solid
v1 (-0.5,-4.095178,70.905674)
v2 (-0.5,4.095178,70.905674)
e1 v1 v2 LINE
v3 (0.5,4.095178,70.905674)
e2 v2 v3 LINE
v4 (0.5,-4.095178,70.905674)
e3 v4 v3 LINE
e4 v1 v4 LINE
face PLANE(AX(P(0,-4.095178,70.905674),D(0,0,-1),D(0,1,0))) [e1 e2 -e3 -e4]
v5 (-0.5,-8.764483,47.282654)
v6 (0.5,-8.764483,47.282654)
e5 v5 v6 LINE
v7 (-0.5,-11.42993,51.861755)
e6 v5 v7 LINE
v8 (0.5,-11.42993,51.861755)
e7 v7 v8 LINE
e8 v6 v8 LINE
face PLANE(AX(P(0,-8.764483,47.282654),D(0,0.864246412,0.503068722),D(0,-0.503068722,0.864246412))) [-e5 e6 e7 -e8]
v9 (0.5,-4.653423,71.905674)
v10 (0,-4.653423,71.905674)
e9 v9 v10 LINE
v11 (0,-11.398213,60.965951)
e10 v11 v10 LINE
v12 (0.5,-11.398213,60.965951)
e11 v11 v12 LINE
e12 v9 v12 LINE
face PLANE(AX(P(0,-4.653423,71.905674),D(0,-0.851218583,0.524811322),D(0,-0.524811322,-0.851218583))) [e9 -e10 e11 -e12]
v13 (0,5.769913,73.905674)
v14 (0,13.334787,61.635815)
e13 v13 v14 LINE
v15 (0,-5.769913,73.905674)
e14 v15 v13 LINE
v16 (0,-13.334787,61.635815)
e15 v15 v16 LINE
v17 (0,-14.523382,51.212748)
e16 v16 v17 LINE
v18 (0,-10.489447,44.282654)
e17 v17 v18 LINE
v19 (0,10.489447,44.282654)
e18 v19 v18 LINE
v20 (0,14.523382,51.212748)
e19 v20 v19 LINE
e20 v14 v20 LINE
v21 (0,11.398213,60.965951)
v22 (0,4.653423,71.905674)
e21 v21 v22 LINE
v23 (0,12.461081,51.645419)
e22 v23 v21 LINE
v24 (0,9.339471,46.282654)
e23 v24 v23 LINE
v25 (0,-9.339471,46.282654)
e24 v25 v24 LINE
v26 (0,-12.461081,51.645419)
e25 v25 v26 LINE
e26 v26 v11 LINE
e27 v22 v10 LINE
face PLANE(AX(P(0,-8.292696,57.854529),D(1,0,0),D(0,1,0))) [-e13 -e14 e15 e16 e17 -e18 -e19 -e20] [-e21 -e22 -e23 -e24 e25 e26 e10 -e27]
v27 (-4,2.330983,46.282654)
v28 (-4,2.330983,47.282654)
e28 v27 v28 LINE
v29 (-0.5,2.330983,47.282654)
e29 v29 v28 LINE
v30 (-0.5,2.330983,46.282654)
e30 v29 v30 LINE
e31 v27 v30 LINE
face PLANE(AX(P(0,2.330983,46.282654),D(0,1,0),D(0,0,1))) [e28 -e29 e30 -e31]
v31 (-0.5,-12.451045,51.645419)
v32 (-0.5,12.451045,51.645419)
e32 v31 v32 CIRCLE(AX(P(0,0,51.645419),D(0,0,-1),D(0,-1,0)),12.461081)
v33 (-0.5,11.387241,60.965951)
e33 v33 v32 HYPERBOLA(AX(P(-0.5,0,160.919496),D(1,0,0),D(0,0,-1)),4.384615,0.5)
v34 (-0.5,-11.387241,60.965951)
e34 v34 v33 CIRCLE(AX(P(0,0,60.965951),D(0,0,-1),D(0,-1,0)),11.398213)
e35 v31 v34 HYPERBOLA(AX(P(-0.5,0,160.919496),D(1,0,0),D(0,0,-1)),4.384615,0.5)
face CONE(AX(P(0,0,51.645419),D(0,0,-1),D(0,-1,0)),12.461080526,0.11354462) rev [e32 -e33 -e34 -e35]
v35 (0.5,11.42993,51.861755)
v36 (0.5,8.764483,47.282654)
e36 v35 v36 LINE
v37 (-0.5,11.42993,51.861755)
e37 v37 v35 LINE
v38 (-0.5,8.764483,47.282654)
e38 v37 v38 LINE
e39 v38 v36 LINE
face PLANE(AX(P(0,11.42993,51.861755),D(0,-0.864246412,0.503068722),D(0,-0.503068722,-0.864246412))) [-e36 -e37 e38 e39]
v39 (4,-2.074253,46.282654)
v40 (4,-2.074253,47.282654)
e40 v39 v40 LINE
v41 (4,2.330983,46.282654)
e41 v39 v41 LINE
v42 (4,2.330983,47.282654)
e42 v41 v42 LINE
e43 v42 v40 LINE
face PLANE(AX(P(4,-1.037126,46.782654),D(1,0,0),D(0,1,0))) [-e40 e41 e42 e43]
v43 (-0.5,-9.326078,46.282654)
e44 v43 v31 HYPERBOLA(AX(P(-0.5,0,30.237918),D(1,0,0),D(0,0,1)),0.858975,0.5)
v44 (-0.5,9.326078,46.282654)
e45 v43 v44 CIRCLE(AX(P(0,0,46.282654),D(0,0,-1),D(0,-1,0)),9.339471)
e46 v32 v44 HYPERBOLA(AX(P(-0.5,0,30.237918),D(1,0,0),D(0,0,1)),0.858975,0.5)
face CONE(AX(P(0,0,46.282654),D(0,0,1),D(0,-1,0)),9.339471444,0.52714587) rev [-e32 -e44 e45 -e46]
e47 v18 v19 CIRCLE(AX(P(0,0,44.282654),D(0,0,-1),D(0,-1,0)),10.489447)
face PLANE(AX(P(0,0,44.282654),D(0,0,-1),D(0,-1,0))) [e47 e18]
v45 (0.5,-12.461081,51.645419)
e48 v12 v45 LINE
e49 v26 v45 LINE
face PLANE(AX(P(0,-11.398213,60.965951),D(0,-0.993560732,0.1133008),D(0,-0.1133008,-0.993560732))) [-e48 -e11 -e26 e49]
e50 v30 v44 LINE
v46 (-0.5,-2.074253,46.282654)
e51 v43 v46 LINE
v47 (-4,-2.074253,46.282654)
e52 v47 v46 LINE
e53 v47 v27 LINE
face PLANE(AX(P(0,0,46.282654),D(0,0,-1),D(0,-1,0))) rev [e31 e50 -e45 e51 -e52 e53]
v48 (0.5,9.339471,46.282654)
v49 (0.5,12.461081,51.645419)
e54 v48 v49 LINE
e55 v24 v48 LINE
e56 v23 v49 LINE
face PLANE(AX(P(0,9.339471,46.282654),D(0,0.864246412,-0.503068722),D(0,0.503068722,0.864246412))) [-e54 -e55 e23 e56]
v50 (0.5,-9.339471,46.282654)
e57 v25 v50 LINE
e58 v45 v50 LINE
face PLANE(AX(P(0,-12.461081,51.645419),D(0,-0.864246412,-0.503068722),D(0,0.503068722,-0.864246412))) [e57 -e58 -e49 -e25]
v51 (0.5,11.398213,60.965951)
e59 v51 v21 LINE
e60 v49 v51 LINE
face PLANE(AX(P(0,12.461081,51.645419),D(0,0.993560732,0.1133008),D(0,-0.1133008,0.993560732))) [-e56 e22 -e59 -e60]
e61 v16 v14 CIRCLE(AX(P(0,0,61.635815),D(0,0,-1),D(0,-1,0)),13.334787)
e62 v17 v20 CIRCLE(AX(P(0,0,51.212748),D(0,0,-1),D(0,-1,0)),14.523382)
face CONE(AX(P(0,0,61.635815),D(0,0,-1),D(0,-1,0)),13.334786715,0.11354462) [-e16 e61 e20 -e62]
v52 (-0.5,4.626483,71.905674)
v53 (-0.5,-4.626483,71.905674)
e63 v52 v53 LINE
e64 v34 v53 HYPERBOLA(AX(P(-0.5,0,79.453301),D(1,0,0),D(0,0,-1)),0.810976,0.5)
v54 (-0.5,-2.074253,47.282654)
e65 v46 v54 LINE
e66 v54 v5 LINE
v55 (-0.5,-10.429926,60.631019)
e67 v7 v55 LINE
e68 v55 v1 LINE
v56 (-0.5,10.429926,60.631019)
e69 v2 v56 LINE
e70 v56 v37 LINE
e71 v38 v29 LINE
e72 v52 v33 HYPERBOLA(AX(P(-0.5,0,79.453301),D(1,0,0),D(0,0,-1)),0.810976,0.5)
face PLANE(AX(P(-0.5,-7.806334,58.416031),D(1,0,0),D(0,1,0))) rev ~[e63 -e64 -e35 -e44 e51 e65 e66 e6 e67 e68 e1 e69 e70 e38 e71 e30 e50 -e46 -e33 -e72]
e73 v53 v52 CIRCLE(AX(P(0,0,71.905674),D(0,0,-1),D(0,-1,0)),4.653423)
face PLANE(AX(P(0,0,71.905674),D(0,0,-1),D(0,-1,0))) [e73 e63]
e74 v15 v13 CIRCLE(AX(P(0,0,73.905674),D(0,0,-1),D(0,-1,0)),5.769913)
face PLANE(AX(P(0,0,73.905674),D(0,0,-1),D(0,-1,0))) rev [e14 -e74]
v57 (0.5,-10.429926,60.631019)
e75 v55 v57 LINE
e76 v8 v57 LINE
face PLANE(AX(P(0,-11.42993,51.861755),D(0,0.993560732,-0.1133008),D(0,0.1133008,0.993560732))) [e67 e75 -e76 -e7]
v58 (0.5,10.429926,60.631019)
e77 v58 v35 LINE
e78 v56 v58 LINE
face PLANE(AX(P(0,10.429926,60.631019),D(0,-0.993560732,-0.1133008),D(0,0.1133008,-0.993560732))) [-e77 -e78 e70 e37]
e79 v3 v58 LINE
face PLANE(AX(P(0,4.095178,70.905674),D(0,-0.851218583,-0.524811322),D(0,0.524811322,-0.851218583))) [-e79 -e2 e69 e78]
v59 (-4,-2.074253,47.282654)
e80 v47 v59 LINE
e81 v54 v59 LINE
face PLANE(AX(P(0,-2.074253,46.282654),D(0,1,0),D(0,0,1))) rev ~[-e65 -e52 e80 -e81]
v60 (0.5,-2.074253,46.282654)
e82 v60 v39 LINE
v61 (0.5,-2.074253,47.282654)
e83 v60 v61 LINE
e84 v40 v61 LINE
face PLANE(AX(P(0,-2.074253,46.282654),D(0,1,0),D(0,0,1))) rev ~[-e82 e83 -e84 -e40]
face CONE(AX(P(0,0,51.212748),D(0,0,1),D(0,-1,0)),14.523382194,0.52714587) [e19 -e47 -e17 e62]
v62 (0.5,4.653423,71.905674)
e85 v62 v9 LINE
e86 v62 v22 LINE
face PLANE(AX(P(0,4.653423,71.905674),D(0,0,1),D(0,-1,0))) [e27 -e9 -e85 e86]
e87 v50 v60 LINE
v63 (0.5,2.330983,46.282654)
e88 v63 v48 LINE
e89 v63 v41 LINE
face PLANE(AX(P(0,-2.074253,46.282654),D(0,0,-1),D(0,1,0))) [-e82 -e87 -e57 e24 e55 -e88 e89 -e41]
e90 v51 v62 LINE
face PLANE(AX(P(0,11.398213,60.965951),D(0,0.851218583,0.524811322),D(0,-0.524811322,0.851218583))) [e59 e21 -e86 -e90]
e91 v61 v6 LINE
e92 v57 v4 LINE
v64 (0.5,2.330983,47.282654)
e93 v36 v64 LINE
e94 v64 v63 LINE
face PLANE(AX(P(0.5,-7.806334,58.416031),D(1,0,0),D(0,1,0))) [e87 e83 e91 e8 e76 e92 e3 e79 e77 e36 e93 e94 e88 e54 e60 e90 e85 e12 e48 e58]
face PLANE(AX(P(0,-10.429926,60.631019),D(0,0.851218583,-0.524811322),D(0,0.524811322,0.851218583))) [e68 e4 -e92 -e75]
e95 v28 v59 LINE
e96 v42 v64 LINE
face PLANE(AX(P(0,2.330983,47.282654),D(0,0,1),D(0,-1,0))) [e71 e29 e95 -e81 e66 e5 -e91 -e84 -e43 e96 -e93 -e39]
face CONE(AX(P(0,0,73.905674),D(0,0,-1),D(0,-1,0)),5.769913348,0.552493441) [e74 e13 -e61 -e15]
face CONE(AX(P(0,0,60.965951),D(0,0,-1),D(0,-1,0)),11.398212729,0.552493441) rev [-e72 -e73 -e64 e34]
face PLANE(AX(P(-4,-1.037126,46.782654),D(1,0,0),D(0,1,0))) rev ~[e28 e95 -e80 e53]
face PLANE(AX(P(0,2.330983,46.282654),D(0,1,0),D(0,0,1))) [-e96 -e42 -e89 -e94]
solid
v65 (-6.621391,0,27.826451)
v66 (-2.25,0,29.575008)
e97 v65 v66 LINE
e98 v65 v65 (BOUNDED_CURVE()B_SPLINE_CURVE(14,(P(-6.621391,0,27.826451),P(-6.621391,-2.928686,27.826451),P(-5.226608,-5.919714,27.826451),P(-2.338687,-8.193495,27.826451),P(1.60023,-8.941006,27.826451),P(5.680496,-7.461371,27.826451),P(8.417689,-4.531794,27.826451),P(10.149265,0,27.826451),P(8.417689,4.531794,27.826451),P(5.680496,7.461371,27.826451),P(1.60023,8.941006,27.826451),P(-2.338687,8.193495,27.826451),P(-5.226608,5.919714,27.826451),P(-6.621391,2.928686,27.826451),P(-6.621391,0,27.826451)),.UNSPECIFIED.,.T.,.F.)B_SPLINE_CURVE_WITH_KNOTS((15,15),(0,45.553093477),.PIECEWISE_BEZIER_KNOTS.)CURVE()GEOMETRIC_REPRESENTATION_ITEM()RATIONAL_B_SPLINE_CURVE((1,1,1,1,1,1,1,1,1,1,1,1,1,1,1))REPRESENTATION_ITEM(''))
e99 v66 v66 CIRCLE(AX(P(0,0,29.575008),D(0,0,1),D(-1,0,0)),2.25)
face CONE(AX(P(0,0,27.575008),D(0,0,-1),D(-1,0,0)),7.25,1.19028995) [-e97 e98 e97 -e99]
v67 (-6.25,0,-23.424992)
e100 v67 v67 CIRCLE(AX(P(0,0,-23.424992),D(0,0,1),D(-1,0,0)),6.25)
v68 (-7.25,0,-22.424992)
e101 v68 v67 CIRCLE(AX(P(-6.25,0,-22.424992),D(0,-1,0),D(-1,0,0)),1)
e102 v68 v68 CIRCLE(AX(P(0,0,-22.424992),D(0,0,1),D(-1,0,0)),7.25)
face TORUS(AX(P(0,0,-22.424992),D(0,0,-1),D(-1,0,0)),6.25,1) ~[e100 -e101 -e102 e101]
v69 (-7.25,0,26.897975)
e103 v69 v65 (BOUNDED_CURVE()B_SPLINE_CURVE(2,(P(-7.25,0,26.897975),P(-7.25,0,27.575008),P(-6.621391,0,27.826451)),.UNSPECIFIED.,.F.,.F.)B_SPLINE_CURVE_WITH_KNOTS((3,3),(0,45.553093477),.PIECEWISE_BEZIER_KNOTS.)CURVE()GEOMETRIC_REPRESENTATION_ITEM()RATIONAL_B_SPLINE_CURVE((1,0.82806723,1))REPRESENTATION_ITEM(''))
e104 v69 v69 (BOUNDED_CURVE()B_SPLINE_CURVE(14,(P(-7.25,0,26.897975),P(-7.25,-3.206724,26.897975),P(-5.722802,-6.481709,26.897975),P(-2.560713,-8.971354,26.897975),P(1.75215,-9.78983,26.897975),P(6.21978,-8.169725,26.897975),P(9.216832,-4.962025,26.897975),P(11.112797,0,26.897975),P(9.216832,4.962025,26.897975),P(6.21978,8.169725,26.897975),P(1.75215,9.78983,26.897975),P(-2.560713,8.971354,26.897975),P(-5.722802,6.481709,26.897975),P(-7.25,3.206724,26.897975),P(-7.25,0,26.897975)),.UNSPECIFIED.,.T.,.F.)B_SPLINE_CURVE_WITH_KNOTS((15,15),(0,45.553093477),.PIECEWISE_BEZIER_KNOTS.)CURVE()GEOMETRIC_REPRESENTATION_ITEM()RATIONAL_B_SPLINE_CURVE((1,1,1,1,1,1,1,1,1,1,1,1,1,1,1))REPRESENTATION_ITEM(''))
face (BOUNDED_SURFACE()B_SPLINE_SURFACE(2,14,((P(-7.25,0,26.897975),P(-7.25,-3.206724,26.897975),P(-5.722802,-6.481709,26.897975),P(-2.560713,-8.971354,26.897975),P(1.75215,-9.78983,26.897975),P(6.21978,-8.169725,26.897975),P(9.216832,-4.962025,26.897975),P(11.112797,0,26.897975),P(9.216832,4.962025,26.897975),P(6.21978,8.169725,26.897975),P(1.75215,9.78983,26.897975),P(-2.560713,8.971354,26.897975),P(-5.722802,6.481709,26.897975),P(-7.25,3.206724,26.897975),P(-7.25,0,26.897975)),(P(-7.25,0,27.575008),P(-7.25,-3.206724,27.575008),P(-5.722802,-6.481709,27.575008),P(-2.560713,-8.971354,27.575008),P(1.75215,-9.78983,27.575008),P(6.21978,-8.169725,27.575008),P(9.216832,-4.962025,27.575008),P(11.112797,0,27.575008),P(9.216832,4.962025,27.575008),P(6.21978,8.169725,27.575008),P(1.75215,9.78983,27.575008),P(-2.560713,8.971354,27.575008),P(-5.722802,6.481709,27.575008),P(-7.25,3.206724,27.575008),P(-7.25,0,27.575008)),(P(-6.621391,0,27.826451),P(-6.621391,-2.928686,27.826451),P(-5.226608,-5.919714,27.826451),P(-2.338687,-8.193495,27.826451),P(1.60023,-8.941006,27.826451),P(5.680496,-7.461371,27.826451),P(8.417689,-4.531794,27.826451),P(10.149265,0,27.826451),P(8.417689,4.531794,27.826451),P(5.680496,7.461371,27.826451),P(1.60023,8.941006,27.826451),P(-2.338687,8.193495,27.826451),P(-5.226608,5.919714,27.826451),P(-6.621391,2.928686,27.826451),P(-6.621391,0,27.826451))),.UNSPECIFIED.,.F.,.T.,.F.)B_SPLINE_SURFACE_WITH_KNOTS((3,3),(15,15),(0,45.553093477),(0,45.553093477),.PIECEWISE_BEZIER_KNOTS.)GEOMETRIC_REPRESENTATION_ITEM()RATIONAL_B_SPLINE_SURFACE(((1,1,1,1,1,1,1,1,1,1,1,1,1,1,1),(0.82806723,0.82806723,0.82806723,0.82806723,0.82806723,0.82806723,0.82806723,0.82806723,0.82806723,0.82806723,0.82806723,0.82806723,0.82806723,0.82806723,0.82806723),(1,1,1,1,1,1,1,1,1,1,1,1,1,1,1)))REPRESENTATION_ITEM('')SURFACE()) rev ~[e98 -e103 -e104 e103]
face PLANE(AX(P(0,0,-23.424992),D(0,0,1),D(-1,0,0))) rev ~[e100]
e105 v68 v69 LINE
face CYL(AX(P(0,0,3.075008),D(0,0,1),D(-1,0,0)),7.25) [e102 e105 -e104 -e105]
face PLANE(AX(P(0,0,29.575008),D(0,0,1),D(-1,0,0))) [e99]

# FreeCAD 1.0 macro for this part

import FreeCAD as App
import Part
import Sketcher


def edges_at(feature, points):
    """Names of the edges that pass closest to the given points."""
    edges = feature.Shape.Edges
    near = lambda p: min(range(len(edges)), key=lambda i: edges[i].distToShape(Part.Vertex(*p))[0])
    return sorted({f"Edge{near(p) + 1}" for p in points})


def add_polygon(sketch, points):
    """Adds a closed chain of lines whose ends are joined by coincident constraints."""
    first, n = sketch.GeometryCount, len(points)
    for a, b in zip(points, points[1:] + points[:1]):
        sketch.addGeometry(Part.LineSegment(App.Vector(*a, 0), App.Vector(*b, 0)), False)
    for i in range(n):
        sketch.addConstraint(Sketcher.Constraint("Coincident", first + i, 2, first + (i + 1) % n, 1))

doc = App.newDocument("Part")
body = doc.addObject("PartDesign::Body", "Body")

# Sketch on XZ plane
sketch1 = body.newObject("Sketcher::SketchObject", "Sketch")
sketch1.AttachmentSupport = (doc.getObject("XZ_Plane"), [""])
sketch1.MapMode = "FlatFace"
add_polygon(sketch1, [(-7, 30), (-7, -23), (0, -23), (0, 30)])  # lines 0-3
sketch1.addConstraint([
    Sketcher.Constraint("Vertical", 0),
    Sketcher.Constraint("Horizontal", 1),
    Sketcher.Constraint("Vertical", 2),
    Sketcher.Constraint("Horizontal", 3),
    Sketcher.Constraint("PointOnObject", 1, 2, -2),
    Sketcher.Constraint("DistanceY", 0, 2, 0, 1, 53.0),
    Sketcher.Constraint("DistanceX", 1, 1, 1, 2, 7.25),
    Sketcher.Constraint("DistanceY", 0, 2, -1, 1, 23.424992),
])
revolution = body.newObject("PartDesign::Revolution", "Revolution")
revolution.Profile = sketch1
revolution.ReferenceAxis = (sketch1, ["V_Axis"])
revolution.Angle = 360
doc.recompute()

chamfer = body.newObject("PartDesign::Chamfer", "Chamfer")
chamfer.Base = (revolution, edges_at(revolution, [(7.25, 0, 29.575)]))
chamfer.ChamferType = "Two distances"
chamfer.Size = 2
chamfer.Size2 = 5
doc.recompute()

fillet = body.newObject("PartDesign::Fillet", "Fillet")
fillet.Base = (chamfer, edges_at(chamfer, [(7.25, 0, 27.575), (7.25, 0, -23.425)]))
fillet.Radius = 1
body2 = doc.addObject("PartDesign::Body", "Body001")

# Sketch on YZ plane
sketch2 = body2.newObject("Sketcher::SketchObject", "Sketch001")
sketch2.AttachmentSupport = (doc.getObject("YZ_Plane001"), [""])
sketch2.MapMode = "FlatFace"
add_polygon(sketch2, [(-4.7, 71.9), (0, 71.9), (0, 73.9), (-5.8, 73.9), (-13.3, 61.6), (-14.5, 51.2), (-10.5, 44.3), (0, 44.3), (0, 46.3), (-9.3, 46.3), (-12.5, 51.6), (-11.4, 61)])  # lines 0-11
sketch2.addConstraint([
    Sketcher.Constraint("Horizontal", 0),
    Sketcher.Constraint("Vertical", 1),
    Sketcher.Constraint("Horizontal", 2),
    Sketcher.Constraint("Horizontal", 6),
    Sketcher.Constraint("Vertical", 7),
    Sketcher.Constraint("Horizontal", 8),
    Sketcher.Constraint("PointOnObject", 0, 2, -2),
    Sketcher.Constraint("PointOnObject", 6, 2, -2),
    Sketcher.Constraint("Parallel", 5, 9),
    Sketcher.Constraint("Parallel", 4, 10),
    Sketcher.Constraint("Parallel", 3, 11),
    Sketcher.Constraint("Equal", 1, 7),
    Sketcher.Constraint("DistanceY", 1, 1, 1, 2, 2.0),
    Sketcher.Constraint("DistanceX", 8, 2, 8, 1, 9.339471),
    Sketcher.Constraint("DistanceX", 4, 2, 9, 2, 2.062302),
    Sketcher.Constraint("DistanceX", 10, 2, 2, 2, 5.628299),
    Sketcher.Constraint("Distance", 4, 10.490619),
    Sketcher.Constraint("Distance", 10, 9.380938),
    Sketcher.Constraint("DistanceX", 0, 1, 0, 2, 4.653423),
    Sketcher.Constraint("DistanceX", 2, 2, 2, 1, 5.769913),
    Sketcher.Constraint("DistanceX", 6, 1, 6, 2, 10.489447),
    Sketcher.Constraint("DistanceY", -1, 1, 4, 2, 51.212748),
    Sketcher.Constraint("DistanceX", 9, 2, -1, 1, 12.461081),
    Sketcher.Constraint("DistanceY", -1, 1, 9, 2, 51.645419),
])
revolution2 = body2.newObject("PartDesign::Revolution", "Revolution001")
revolution2.Profile = sketch2
revolution2.ReferenceAxis = (sketch2, ["V_Axis"])
revolution2.Angle = 180
revolution2.Reversed = True

# Sketch on YZ plane
sketch3 = body2.newObject("Sketcher::SketchObject", "Sketch002")
sketch3.AttachmentSupport = (doc.getObject("YZ_Plane001"), [""])
sketch3.MapMode = "FlatFace"
add_polygon(sketch3, [(-4.7, 71.9), (-11.4, 61), (-12.5, 51.6), (-9.3, 46.3), (-2.1, 46.3), (-2.1, 47.3), (-8.8, 47.3), (-11.4, 51.9), (-10.4, 60.6), (-4.1, 70.9), (4.1, 70.9), (10.4, 60.6), (11.4, 51.9), (8.8, 47.3), (2.3, 47.3), (2.3, 46.3), (9.3, 46.3), (12.5, 51.6), (11.4, 61), (4.7, 71.9)])  # lines 0-19
sketch3.addConstraint([
    Sketcher.Constraint("Horizontal", 3),
    Sketcher.Constraint("Vertical", 4),
    Sketcher.Constraint("Horizontal", 5),
    Sketcher.Constraint("Horizontal", 9),
    Sketcher.Constraint("Horizontal", 13),
    Sketcher.Constraint("Vertical", 14),
    Sketcher.Constraint("Horizontal", 15),
    Sketcher.Constraint("Horizontal", 19),
    Sketcher.Constraint("Symmetric", 7, 2, 10, 2, -2),
    Sketcher.Constraint("Symmetric", 6, 2, 11, 2, -2),
    Sketcher.Constraint("Symmetric", 5, 2, 12, 2, -2),
    Sketcher.Constraint("Symmetric", 2, 2, 15, 2, -2),
    Sketcher.Constraint("Symmetric", 1, 2, 16, 2, -2),
    Sketcher.Constraint("Symmetric", 0, 2, 17, 2, -2),
    Sketcher.Constraint("Parallel", 2, 6),
    Sketcher.Constraint("Parallel", 1, 7),
    Sketcher.Constraint("Parallel", 0, 8),
    Sketcher.Constraint("Parallel", 10, 18),
    Sketcher.Constraint("Equal", 8, 10),
    Sketcher.Constraint("DistanceY", 4, 1, 4, 2, 1.0),
    Sketcher.Constraint("DistanceY", 9, 2, 18, 2, 1.0),
    Sketcher.Constraint("DistanceX", 13, 2, 13, 1, 6.433501),
    Sketcher.Constraint("DistanceX", 3, 1, 3, 2, 7.265219),
    Sketcher.Constraint("DistanceX", 5, 2, 5, 1, 6.690231),
    Sketcher.Constraint("DistanceY", 5, 2, 6, 2, 4.579101),
    Sketcher.Constraint("DistanceY", 1, 2, 7, 2, 8.9856),
    Sketcher.Constraint("DistanceX", 8, 2, 18, 2, 8.748601),
    Sketcher.Constraint("Distance", 1, 9.380938),
    Sketcher.Constraint("DistanceX", 9, 1, 9, 2, 8.190356),
    Sketcher.Constraint("DistanceY", -1, 1, 0, 2, 60.965951),
    Sketcher.Constraint("DistanceX", 1, 2, -1, 1, 12.461081),
    Sketcher.Constraint("DistanceY", -1, 1, 1, 2, 51.645419),
    Sketcher.Constraint("DistanceX", 2, 2, -1, 1, 9.339471),
    Sketcher.Constraint("DistanceX", 6, 2, -1, 1, 11.42993),
])
pad1 = body2.newObject("PartDesign::Pad", "Pad")
pad1.Profile = sketch3
pad1.Length = 1
pad1.Midplane = True

# Sketch on YZ plane
sketch4 = body2.newObject("Sketcher::SketchObject", "Sketch003")
sketch4.AttachmentSupport = (doc.getObject("YZ_Plane001"), [""])
sketch4.MapMode = "FlatFace"
add_polygon(sketch4, [(-2.1, 47.3), (-2.1, 46.3), (2.3, 46.3), (2.3, 47.3)])  # lines 0-3
sketch4.addConstraint([
    Sketcher.Constraint("Vertical", 0),
    Sketcher.Constraint("Horizontal", 1),
    Sketcher.Constraint("Vertical", 2),
    Sketcher.Constraint("Horizontal", 3),
    Sketcher.Constraint("DistanceY", 0, 2, 0, 1, 1.0),
    Sketcher.Constraint("DistanceX", 1, 1, 1, 2, 4.405235),
    Sketcher.Constraint("DistanceX", 0, 2, -1, 1, 2.074253),
    Sketcher.Constraint("DistanceY", -1, 1, 0, 2, 46.282654),
])
pad2 = body2.newObject("PartDesign::Pad", "Pad001")
pad2.Profile = sketch4
pad2.Length = 8
pad2.Midplane = True

doc.recompute()
